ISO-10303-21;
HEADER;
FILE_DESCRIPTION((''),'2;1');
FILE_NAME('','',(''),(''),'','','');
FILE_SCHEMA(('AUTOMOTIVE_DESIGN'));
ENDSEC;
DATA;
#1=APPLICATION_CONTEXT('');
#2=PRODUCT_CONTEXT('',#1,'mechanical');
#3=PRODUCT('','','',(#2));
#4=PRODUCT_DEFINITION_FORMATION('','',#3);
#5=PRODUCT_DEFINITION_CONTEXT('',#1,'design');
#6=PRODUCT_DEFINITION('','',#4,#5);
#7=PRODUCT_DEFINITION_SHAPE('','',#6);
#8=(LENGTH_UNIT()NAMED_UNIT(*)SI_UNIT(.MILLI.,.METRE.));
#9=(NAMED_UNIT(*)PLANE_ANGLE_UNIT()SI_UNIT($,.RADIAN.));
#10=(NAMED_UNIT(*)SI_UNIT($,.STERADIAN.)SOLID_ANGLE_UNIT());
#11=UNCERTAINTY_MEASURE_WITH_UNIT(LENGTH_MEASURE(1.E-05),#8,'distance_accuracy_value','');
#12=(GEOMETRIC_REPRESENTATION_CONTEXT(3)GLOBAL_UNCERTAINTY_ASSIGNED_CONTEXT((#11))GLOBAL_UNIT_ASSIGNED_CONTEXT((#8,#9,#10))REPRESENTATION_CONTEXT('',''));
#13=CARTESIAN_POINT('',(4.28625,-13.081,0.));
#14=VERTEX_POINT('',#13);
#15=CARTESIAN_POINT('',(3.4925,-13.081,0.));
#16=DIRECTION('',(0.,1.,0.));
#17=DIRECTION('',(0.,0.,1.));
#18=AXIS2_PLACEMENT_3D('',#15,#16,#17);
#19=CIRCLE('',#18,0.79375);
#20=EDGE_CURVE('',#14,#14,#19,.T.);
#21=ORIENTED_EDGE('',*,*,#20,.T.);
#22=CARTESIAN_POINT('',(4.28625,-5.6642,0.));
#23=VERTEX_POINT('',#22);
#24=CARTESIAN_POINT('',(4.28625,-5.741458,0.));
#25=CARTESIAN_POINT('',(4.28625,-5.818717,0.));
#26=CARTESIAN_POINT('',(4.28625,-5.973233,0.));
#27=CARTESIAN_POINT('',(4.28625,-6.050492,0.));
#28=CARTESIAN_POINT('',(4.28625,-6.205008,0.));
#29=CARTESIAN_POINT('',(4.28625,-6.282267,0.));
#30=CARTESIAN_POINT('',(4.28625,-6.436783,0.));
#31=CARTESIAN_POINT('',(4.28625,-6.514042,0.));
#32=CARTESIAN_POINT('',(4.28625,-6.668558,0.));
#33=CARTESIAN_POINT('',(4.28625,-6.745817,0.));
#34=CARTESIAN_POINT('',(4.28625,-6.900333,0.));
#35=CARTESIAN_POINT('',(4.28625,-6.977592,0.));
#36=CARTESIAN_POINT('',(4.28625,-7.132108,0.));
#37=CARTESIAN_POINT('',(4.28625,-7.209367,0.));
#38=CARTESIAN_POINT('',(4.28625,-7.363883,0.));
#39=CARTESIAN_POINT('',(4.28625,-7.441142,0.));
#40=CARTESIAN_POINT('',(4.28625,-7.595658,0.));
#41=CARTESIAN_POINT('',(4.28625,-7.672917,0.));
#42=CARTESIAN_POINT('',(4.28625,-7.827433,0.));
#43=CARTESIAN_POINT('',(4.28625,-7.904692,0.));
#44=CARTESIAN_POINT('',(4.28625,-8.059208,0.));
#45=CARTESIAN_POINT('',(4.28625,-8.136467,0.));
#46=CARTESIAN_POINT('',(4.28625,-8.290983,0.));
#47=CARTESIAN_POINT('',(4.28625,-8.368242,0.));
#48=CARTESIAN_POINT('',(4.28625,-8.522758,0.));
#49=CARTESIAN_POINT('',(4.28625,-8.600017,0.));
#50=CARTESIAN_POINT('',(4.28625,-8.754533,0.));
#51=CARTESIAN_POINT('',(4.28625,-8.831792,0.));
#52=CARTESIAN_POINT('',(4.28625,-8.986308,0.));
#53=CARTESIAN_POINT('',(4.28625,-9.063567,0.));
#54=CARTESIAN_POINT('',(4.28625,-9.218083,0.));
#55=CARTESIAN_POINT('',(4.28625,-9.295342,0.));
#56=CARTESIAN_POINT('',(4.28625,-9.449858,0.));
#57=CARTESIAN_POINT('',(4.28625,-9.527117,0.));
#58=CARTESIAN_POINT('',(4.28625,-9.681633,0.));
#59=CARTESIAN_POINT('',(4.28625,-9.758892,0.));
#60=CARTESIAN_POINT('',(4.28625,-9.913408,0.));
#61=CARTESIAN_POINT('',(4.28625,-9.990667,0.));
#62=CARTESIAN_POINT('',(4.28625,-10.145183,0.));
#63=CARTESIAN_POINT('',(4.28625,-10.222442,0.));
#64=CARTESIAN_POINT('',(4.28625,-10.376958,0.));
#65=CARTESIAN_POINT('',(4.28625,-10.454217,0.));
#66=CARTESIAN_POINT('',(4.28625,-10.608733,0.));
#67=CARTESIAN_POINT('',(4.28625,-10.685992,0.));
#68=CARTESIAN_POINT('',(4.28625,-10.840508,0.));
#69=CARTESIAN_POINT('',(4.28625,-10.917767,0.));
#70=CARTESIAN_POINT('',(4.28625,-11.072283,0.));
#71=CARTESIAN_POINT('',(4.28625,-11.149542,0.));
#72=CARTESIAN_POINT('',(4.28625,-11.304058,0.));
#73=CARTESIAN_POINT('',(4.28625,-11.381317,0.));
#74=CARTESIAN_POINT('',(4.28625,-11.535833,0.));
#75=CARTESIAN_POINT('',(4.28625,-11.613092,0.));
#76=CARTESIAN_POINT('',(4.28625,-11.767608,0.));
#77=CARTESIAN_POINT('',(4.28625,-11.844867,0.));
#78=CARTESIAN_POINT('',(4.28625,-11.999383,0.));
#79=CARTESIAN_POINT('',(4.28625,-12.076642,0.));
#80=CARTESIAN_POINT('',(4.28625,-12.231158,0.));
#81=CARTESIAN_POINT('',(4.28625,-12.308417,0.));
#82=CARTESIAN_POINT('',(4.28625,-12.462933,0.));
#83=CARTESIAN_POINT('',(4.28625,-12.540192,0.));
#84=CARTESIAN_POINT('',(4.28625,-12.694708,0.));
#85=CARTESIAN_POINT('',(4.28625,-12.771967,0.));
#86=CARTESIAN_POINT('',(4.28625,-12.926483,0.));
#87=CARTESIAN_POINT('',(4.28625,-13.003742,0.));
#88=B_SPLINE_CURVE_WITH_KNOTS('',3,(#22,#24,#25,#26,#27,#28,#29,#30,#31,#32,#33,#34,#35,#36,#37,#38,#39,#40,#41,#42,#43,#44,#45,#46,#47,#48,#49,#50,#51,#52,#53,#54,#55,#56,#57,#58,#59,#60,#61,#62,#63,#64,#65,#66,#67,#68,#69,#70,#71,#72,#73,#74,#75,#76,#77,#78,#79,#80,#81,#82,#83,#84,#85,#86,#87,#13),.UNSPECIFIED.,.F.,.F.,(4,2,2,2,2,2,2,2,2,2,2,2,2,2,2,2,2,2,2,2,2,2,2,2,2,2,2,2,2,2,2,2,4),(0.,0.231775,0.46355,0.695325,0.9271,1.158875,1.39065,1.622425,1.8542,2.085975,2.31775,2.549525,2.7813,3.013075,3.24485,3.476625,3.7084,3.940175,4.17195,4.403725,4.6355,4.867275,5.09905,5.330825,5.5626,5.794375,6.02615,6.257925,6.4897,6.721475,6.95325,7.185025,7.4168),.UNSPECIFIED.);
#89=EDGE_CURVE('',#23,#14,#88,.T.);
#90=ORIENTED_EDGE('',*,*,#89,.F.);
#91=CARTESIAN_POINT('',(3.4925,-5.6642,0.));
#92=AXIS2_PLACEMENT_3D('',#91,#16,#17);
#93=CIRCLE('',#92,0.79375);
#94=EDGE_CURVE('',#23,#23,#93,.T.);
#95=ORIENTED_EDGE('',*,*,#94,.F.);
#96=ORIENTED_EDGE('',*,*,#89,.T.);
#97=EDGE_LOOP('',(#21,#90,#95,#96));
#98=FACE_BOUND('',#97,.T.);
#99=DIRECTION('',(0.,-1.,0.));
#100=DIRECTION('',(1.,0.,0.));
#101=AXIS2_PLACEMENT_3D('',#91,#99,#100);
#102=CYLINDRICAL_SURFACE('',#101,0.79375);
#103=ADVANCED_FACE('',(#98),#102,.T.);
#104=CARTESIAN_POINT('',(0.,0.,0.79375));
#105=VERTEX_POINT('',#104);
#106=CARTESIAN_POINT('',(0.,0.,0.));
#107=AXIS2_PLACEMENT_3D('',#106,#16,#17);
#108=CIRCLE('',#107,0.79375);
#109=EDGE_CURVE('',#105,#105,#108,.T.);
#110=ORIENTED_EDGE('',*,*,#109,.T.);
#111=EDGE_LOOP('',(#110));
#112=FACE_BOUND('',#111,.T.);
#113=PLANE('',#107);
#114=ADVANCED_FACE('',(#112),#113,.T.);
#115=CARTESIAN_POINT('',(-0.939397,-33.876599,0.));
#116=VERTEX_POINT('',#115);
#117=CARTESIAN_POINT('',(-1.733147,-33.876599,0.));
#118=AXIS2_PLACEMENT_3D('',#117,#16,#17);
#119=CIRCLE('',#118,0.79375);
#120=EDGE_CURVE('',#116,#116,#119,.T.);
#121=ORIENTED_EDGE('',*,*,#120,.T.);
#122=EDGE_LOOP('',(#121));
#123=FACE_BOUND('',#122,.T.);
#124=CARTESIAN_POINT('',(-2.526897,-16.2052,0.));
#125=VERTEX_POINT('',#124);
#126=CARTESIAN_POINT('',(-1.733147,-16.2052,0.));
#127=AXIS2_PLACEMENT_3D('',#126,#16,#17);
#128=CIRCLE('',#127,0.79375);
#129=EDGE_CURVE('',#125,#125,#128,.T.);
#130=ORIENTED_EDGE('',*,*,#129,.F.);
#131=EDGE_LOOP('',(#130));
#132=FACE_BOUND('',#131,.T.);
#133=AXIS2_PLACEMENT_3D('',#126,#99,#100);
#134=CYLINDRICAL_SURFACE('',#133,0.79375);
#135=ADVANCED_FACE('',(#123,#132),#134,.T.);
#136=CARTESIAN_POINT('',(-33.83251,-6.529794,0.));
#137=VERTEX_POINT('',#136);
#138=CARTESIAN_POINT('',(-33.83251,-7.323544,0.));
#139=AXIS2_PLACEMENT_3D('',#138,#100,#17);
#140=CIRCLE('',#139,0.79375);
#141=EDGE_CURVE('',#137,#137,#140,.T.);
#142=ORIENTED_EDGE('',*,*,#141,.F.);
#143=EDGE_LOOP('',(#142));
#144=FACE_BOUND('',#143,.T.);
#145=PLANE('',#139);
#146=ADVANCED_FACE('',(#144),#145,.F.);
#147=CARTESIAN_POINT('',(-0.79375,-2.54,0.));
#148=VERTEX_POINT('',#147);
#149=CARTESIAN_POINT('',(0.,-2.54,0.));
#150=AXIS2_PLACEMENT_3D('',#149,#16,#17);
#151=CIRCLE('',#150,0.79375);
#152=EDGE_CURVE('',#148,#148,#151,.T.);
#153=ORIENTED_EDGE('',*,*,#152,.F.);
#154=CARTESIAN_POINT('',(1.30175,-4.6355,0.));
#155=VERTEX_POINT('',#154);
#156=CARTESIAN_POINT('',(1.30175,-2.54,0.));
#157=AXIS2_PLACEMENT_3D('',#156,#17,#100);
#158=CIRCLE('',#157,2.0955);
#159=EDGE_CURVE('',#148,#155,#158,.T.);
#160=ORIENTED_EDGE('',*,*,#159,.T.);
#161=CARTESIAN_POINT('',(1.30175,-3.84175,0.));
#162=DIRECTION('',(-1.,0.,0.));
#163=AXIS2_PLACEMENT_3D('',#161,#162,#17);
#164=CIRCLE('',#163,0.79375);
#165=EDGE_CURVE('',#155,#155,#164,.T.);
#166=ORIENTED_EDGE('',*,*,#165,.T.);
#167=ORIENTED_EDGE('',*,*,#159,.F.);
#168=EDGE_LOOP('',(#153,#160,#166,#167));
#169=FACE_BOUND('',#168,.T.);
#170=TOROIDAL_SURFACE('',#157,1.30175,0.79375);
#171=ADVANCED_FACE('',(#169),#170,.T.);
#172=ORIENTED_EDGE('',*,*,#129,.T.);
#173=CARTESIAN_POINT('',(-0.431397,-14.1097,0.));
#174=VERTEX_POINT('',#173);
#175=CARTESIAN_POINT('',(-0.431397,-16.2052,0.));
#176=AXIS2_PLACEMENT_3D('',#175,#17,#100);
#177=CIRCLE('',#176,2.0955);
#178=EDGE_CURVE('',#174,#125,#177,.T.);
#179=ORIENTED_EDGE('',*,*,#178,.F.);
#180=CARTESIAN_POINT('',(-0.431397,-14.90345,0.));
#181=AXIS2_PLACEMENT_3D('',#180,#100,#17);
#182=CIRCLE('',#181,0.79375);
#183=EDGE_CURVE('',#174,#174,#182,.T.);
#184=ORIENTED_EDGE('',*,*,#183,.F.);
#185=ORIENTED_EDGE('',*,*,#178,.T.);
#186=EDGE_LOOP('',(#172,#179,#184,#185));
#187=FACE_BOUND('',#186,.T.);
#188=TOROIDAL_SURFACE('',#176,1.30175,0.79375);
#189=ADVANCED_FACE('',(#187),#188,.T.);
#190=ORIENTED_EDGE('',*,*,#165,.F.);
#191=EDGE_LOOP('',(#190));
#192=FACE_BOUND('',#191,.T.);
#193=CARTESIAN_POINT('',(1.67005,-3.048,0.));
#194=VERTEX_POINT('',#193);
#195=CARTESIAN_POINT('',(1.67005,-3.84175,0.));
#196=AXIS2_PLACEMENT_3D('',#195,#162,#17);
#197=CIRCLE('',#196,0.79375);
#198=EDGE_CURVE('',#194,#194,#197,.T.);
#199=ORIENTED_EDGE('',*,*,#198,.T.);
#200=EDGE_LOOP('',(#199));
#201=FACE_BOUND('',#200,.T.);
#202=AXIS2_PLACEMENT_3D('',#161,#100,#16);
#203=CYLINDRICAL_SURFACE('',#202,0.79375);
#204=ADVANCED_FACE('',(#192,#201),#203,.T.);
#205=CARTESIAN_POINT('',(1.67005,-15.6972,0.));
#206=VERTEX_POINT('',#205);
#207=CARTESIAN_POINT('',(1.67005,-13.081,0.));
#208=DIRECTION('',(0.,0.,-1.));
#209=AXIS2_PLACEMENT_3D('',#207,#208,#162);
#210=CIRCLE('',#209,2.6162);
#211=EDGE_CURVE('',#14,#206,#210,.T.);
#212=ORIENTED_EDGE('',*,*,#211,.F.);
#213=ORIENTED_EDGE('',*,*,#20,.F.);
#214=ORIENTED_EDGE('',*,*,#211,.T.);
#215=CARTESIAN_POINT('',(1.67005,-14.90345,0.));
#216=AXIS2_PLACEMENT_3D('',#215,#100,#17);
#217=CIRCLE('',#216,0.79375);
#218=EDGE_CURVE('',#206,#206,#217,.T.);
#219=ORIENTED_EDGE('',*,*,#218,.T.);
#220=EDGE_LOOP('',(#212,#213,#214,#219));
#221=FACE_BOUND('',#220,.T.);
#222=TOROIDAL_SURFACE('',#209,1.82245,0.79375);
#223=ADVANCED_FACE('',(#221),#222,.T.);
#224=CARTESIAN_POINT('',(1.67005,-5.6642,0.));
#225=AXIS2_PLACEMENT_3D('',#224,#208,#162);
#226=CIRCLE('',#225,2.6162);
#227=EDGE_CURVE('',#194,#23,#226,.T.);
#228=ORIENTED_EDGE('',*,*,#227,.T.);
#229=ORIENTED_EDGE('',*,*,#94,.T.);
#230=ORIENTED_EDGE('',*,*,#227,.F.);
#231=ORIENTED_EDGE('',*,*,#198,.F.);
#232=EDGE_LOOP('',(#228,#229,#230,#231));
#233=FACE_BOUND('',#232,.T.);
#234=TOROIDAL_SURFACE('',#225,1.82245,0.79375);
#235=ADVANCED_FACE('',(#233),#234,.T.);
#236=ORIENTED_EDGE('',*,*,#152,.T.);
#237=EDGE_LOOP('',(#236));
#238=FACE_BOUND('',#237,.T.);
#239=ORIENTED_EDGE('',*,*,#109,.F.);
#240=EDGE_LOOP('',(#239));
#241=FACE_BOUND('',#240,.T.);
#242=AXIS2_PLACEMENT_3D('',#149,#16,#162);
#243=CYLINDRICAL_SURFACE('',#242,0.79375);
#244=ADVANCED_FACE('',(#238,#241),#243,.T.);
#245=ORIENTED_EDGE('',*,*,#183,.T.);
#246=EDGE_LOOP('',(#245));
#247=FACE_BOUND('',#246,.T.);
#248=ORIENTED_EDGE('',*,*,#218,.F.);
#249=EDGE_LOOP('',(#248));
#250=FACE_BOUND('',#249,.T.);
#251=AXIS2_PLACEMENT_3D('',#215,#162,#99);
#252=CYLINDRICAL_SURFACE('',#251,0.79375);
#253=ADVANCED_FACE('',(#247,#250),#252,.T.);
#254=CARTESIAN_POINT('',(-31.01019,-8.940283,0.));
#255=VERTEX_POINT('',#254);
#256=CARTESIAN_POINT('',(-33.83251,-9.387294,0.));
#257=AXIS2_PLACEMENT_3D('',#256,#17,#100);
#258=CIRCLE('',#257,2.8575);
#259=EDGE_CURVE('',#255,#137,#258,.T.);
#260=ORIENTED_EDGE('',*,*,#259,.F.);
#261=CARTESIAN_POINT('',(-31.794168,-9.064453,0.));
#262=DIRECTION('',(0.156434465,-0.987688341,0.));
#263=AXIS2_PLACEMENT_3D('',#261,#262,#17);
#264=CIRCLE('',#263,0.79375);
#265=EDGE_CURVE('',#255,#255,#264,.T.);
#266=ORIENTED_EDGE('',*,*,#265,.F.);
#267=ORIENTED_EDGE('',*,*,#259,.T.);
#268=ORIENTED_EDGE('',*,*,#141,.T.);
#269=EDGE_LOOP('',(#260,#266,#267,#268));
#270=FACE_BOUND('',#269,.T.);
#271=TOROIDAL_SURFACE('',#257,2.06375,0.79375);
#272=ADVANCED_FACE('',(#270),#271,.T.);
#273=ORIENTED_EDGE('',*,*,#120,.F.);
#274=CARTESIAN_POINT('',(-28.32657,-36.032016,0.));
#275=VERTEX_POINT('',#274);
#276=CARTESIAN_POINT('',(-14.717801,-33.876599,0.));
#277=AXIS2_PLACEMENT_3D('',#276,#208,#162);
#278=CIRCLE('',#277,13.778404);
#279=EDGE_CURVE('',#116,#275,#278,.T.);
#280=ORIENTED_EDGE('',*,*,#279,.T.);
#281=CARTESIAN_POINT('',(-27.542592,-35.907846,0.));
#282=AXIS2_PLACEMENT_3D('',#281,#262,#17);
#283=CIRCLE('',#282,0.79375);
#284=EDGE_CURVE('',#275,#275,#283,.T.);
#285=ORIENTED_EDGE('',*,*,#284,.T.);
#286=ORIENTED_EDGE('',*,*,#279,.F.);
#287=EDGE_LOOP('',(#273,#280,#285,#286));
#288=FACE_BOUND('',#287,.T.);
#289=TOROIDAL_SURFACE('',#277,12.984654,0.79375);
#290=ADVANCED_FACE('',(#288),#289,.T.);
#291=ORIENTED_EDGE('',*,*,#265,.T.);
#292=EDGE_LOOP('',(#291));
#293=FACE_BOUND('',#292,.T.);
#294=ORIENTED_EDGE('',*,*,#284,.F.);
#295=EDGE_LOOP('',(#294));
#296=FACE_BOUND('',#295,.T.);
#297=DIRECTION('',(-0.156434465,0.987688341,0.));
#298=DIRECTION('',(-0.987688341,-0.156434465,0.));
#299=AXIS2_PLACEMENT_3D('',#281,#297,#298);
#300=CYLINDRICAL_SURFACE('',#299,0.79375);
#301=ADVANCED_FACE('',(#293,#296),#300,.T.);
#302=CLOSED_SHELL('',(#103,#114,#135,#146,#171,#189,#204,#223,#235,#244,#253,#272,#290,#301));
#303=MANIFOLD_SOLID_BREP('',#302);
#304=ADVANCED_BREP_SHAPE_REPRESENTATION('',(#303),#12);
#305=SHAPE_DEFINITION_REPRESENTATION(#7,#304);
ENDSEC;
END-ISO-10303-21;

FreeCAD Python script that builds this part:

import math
import FreeCAD as App
import Part
import Sketcher

V = App.Vector
Q = App.Units.Quantity

doc = App.newDocument("Part")
params = doc.addObject("Spreadsheet::Sheet", "Params")
for row, (alias, value) in enumerate([
    ("sketch1_diameter", "0.0625 in"),
    ("sketch2_height", "0.1 in"),
    ("sketch2_length", "1.07 in"),
    ("sketch2_height2", "0.292 in"),
], start=1):
    params.set(f"A{row}", alias)
    params.set(f"B{row}", "=" + value)
    params.setAlias(f"B{row}", alias)

body = doc.addObject("PartDesign::Body", "Body")

# Sketch on XZ plane
sketch1 = doc.addObject("Sketcher::SketchObject", "Sketch")
body.addObject(sketch1)
sketch1.AttachmentSupport = (doc.XZ_Plane, [""])
sketch1.MapMode = "FlatFace"
sketch1.addGeometry(Part.Circle(V(0, 0, 0), V(0, 0, 1), 0.8), False)
sketch1.addConstraint([
    Sketcher.Constraint("Coincident", 0, 3, -1, 1),
    Sketcher.Constraint("Diameter", 0, Q("0.0625 in")),
])
sketch1.setExpression("Constraints[1]", "Params.sketch1_diameter")

# Sketch on XY plane
sketch2 = doc.addObject("Sketcher::SketchObject", "Sketch001")
body.addObject(sketch2)
sketch2.AttachmentSupport = (doc.XY_Plane, [""])
sketch2.MapMode = "FlatFace"
sketch2.addGeometry([
    Part.LineSegment(V(0, 0, 0), V(0, -2.54, 0)),  # 0
    Part.ArcOfCircle(Part.Circle(V(1.3, -2.54, 0), V(0, 0, 1), 1.3), math.radians(-180), math.radians(-90)),  # 1
    Part.LineSegment(V(1.3, -3.84, 0), V(1.67, -3.84, 0)),  # 2
    Part.ArcOfCircle(Part.Circle(V(1.67, -5.66, 0), V(0, 0, 1), 1.82), math.radians(0), math.radians(90)),  # 3
    Part.LineSegment(V(3.49, -5.66, 0), V(3.49, -13.08, 0)),  # 4
    Part.ArcOfCircle(Part.Circle(V(1.67, -13.08, 0), V(0, 0, 1), 1.82), math.radians(-90), math.radians(0)),  # 5
    Part.LineSegment(V(1.67, -14.9, 0), V(-0.43, -14.9, 0)),  # 6
    Part.ArcOfCircle(Part.Circle(V(-0.43, -16.21, 0), V(0, 0, 1), 1.3), math.radians(90), math.radians(180)),  # 7
    Part.LineSegment(V(-1.73, -16.21, 0), V(-1.73, -33.88, 0)),  # 8
    Part.ArcOfCircle(Part.Circle(V(-14.72, -33.88, 0), V(0, 0, 1), 12.98), math.radians(-171), math.radians(0)),  # 9
    Part.LineSegment(V(-27.54, -35.91, 0), V(-31.79, -9.06, 0)),  # 10
    Part.ArcOfCircle(Part.Circle(V(-33.83, -9.39, 0), V(0, 0, 1), 2.06), math.radians(9), math.radians(90)),  # 11
], False)
sketch2.addConstraint([
    Sketcher.Constraint("Tangent", 0, 2, 1, 1),
    Sketcher.Constraint("Tangent", 1, 2, 2, 1),
    Sketcher.Constraint("Tangent", 2, 2, 3, 2),
    Sketcher.Constraint("Tangent", 3, 1, 4, 1),
    Sketcher.Constraint("Tangent", 4, 2, 5, 2),
    Sketcher.Constraint("Tangent", 5, 1, 6, 1),
    Sketcher.Constraint("Tangent", 6, 2, 7, 1),
    Sketcher.Constraint("Tangent", 7, 2, 8, 1),
    Sketcher.Constraint("Tangent", 8, 2, 9, 2),
    Sketcher.Constraint("Tangent", 9, 1, 10, 1),
    Sketcher.Constraint("Tangent", 10, 2, 11, 1),
    Sketcher.Constraint("Vertical", 0),
    Sketcher.Constraint("Horizontal", 2),
    Sketcher.Constraint("Vertical", 4),
    Sketcher.Constraint("Horizontal", 6),
    Sketcher.Constraint("Vertical", 8),
    Sketcher.Constraint("Coincident", 0, 1, -1, 1),
    Sketcher.Constraint("Equal", 3, 5),
    Sketcher.Constraint("Equal", 1, 7),
    Sketcher.Constraint("DistanceY", 0, 2, 0, 1, Q("0.1 in")),
    Sketcher.Constraint("Angle", 10, Q("99 deg")),
    Sketcher.Constraint("Distance", 10, Q("1.07 in")),
    Sketcher.Constraint("DistanceY", 4, 2, 4, 1, Q("0.292 in")),
    Sketcher.Constraint("DistanceX", 2, 1, 2, 2, Q("0.0145 in")),
    Sketcher.Constraint("DistanceY", 3, 3, -1, 1, Q("0.223 in")),
    Sketcher.Constraint("Radius", 1, Q("1.30175 mm")),
    Sketcher.Constraint("Radius", 11, Q("2.06375 mm")),
    Sketcher.Constraint("DistanceY", 8, 2, 8, 1, Q("17.671399 mm")),
    Sketcher.Constraint("Radius", 9, Q("12.984654 mm")),
    Sketcher.Constraint("DistanceX", 9, 3, -1, 1, Q("14.717801 mm")),
    Sketcher.Constraint("DistanceX", 11, 2, -1, 1, Q("33.83251 mm")),
])
sketch2.setExpression("Constraints[19]", "Params.sketch2_height")
sketch2.setExpression("Constraints[21]", "Params.sketch2_length")
sketch2.setExpression("Constraints[22]", "Params.sketch2_height2")
doc.recompute()

additivepipe = doc.addObject("PartDesign::AdditivePipe", "AdditivePipe")
body.addObject(additivepipe)
additivepipe.Profile = sketch1
additivepipe.Spine = (sketch2, ["Edge1", "Edge2", "Edge3", "Edge4", "Edge5", "Edge6", "Edge7", "Edge8", "Edge9", "Edge10", "Edge11", "Edge12"])

doc.recompute()
